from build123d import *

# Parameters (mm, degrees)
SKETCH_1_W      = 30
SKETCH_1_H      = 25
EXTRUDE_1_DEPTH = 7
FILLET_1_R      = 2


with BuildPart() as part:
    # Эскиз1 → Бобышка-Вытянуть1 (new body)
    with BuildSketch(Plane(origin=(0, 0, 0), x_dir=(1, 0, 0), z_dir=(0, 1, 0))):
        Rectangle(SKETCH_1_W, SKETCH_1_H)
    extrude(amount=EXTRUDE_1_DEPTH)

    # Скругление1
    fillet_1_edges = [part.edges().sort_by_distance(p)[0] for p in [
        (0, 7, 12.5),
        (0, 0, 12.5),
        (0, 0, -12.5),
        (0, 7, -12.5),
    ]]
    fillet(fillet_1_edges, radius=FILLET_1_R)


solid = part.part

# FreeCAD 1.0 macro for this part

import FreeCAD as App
import Part
import Sketcher
from FreeCAD import Vector


def edges_at(feature, points):
    """Names of the edges that pass closest to the given points."""
    edges = feature.Shape.Edges
    near = lambda p: min(range(len(edges)), key=lambda i: edges[i].distToShape(Part.Vertex(*p))[0])
    return sorted({f"Edge{near(p) + 1}" for p in points})

doc = App.newDocument("Part")
body = doc.addObject("PartDesign::Body", "Body")

sketch1 = body.newObject("Sketcher::SketchObject", "Sketch")
sketch1.AttachmentSupport = (doc.getObject("XZ_Plane"), [""])
sketch1.MapMode = "FlatFace"
sketch1.addGeometry([
    Part.LineSegment(Vector(-15, -12, 0), Vector(-15, 12, 0)),
    Part.LineSegment(Vector(-15, 12, 0), Vector(15, 12, 0)),
    Part.LineSegment(Vector(15, 12, 0), Vector(15, -12, 0)),
    Part.LineSegment(Vector(15, -12, 0), Vector(-15, -12, 0)),
], False)
sketch1.addConstraint([
    Sketcher.Constraint("Coincident", 0, 2, 1, 1),
    Sketcher.Constraint("Coincident", 1, 2, 2, 1),
    Sketcher.Constraint("Coincident", 2, 2, 3, 1),
    Sketcher.Constraint("Coincident", 3, 2, 0, 1),
    Sketcher.Constraint("Vertical", 0),
    Sketcher.Constraint("Horizontal", 1),
    Sketcher.Constraint("Vertical", 2),
    Sketcher.Constraint("Horizontal", 3),
    Sketcher.Constraint("Symmetric", 0, 2, 2, 2, -1, 1),
    Sketcher.Constraint("DistanceX", 1, 1, 1, 2, 30.0),
    Sketcher.Constraint("DistanceY", 0, 1, 0, 2, 25.0),
])
pad1 = body.newObject("PartDesign::Pad", "Pad")
pad1.Profile = sketch1
pad1.Length = 7
pad1.Reversed = True
doc.recompute()

fillet = body.newObject("PartDesign::Fillet", "Fillet")
fillet.Base = (pad1, edges_at(pad1, [
    (0, 7, 12.5),
    (0, 0, 12.5),
    (0, 0, -12.5),
    (0, 7, -12.5),
]))
fillet.Radius = 2

doc.recompute()
